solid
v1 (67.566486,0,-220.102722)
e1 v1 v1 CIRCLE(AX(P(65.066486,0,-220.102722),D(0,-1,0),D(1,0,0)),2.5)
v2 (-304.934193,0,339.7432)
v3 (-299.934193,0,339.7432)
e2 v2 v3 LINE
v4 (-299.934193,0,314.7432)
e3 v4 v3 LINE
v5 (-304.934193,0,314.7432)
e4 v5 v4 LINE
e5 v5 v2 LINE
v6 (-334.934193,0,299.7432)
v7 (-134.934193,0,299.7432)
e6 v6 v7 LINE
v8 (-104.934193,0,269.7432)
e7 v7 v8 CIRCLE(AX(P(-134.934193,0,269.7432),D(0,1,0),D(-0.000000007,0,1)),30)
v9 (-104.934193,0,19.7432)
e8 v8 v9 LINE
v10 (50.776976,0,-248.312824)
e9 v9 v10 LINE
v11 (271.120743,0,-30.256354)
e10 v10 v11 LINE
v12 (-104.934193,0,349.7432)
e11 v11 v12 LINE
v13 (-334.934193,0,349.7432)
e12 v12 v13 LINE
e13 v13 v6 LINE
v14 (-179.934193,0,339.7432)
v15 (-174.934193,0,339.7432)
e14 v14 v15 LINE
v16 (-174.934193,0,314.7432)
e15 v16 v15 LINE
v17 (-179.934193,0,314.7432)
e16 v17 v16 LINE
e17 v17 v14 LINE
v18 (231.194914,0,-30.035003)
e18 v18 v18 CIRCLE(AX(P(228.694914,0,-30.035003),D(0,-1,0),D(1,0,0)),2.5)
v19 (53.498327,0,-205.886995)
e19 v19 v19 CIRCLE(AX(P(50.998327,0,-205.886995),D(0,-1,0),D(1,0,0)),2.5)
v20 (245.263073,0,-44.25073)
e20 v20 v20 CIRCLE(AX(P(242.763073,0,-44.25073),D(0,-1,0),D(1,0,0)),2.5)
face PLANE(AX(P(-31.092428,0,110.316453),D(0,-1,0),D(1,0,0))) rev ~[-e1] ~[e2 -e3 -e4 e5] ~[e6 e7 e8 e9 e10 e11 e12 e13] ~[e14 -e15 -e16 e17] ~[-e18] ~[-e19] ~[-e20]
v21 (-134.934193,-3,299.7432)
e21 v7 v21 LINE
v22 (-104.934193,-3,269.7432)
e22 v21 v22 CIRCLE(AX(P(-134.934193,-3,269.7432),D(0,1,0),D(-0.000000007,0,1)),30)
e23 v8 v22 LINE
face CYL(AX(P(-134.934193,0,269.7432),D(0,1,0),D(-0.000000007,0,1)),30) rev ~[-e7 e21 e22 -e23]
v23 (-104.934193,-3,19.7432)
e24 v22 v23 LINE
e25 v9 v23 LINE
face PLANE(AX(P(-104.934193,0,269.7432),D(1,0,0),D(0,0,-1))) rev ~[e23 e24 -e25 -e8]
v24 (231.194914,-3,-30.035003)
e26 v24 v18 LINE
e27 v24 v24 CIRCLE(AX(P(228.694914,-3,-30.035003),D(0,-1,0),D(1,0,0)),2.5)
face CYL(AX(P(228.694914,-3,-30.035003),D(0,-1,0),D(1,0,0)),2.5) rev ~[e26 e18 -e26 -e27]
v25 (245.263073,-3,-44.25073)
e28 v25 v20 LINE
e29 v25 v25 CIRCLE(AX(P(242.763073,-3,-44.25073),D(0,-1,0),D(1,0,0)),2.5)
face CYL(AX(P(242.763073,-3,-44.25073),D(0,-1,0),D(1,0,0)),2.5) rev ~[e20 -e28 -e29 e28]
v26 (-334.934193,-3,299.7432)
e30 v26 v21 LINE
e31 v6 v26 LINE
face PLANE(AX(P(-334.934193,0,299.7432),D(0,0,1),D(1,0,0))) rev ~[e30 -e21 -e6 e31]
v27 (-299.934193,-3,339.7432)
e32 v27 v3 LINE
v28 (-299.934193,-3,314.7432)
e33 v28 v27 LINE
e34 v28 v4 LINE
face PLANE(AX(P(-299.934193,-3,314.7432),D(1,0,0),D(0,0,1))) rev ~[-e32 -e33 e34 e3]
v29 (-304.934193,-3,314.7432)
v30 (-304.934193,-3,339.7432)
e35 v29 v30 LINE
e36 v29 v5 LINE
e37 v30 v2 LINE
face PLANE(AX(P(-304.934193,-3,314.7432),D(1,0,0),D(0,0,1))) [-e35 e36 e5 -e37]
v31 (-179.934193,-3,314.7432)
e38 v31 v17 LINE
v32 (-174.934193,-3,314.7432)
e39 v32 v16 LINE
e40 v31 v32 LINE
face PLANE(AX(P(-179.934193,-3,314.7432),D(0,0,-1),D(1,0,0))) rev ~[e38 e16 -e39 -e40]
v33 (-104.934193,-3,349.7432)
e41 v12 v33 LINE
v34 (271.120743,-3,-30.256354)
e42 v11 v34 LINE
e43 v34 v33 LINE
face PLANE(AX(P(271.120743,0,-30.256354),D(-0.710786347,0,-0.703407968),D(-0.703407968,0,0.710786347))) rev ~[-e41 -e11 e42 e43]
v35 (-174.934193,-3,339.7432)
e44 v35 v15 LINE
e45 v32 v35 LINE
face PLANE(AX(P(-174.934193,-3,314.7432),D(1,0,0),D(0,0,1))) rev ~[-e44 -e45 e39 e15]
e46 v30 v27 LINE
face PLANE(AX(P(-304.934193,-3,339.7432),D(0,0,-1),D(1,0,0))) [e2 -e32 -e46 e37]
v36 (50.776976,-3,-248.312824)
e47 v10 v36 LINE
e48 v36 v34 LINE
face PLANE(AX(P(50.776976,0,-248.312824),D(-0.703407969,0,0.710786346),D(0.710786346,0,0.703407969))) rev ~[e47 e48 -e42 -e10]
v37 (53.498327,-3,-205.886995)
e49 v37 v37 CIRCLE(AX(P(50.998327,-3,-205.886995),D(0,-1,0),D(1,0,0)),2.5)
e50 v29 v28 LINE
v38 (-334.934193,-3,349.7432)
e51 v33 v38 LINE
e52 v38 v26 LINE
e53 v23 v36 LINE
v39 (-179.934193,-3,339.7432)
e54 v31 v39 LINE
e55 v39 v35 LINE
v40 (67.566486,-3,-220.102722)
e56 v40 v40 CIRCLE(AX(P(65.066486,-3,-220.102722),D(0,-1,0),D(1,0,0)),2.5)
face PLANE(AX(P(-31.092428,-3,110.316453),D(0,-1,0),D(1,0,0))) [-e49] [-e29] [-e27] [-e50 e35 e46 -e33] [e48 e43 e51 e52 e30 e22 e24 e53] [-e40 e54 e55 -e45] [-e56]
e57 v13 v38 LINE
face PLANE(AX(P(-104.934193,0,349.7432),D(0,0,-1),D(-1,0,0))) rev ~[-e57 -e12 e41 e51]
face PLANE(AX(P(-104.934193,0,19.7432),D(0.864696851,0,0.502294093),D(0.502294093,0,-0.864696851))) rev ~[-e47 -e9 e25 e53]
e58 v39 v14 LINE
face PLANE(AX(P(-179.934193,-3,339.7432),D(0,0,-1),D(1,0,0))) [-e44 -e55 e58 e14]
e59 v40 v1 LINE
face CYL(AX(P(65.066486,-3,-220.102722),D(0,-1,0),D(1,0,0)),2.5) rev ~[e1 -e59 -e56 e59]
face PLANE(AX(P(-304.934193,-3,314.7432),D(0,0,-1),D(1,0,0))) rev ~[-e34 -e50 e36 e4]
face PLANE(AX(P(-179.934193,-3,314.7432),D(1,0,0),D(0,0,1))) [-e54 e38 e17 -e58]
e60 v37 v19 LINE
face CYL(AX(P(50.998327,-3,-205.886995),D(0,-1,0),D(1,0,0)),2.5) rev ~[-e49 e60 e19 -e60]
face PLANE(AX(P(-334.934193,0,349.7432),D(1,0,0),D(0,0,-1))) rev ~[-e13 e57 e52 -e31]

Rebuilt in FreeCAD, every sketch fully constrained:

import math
import FreeCAD as App
import Part
import Sketcher

doc = App.newDocument("Part")
body = doc.addObject("PartDesign::Body", "Body")

# Sketch on XZ plane
sketch1 = doc.addObject("Sketcher::SketchObject", "Sketch")
body.addObject(sketch1)
sketch1.AttachmentSupport = (doc.XZ_Plane, [""])
sketch1.MapMode = "FlatFace"
sketch1.addGeometry([
    Part.LineSegment(App.Vector(-105, 350, 0), App.Vector(-335, 350, 0)),  # 0
    Part.LineSegment(App.Vector(-335, 350, 0), App.Vector(-335, 300, 0)),  # 1
    Part.LineSegment(App.Vector(-335, 300, 0), App.Vector(-135, 300, 0)),  # 2
    Part.ArcOfCircle(Part.Circle(App.Vector(-135, 270, 0), App.Vector(0, 0, 1), 30), math.radians(0), math.radians(90)),  # 3
    Part.LineSegment(App.Vector(-105, 270, 0), App.Vector(-105, 20, 0)),  # 4
    Part.LineSegment(App.Vector(-105, 20, 0), App.Vector(51, -248, 0)),  # 5
    Part.LineSegment(App.Vector(51, -248, 0), App.Vector(271, -30, 0)),  # 6
    Part.LineSegment(App.Vector(271, -30, 0), App.Vector(-105, 350, 0)),  # 7
], False)
sketch1.addConstraint([
    Sketcher.Constraint("Coincident", 0, 2, 1, 1),
    Sketcher.Constraint("Coincident", 1, 2, 2, 1),
    Sketcher.Constraint("Tangent", 2, 2, 3, 2),
    Sketcher.Constraint("Tangent", 3, 1, 4, 1),
    Sketcher.Constraint("Coincident", 4, 2, 5, 1),
    Sketcher.Constraint("Coincident", 5, 2, 6, 1),
    Sketcher.Constraint("Coincident", 6, 2, 7, 1),
    Sketcher.Constraint("Coincident", 7, 2, 0, 1),
    Sketcher.Constraint("Horizontal", 0),
    Sketcher.Constraint("Vertical", 1),
    Sketcher.Constraint("Horizontal", 2),
    Sketcher.Constraint("Vertical", 4),
    Sketcher.Constraint("Perpendicular", 6, 7),
    Sketcher.Constraint("Vertical", 4, 2, 7, 2),
    Sketcher.Constraint("Equal", 5, 6),
    Sketcher.Constraint("Radius", 3, 30.0),
    Sketcher.Constraint("DistanceX", 0, 2, 0, 1, 230.0),
    Sketcher.Constraint("DistanceY", 1, 2, 1, 1, 50.0),
    Sketcher.Constraint("DistanceY", 4, 2, 4, 1, 250.0),
    Sketcher.Constraint("Distance", 5, 310.0),
    Sketcher.Constraint("DistanceY", -1, 1, 3, 3, 269.7432),
    Sketcher.Constraint("DistanceX", 4, 2, 5, 2, 155.711169),
    Sketcher.Constraint("DistanceX", 3, 3, -1, 1, 134.934193),
])
pad1 = doc.addObject("PartDesign::Pad", "Pad")
body.addObject(pad1)
pad1.Profile = sketch1
pad1.Length = 3

# Sketch on XZ plane
sketch2 = doc.addObject("Sketcher::SketchObject", "Sketch001")
body.addObject(sketch2)
sketch2.AttachmentSupport = (doc.XZ_Plane, [""])
sketch2.MapMode = "FlatFace"
sketch2.AttachmentOffset = App.Placement(App.Vector(0, 0, 3), App.Rotation())
sketch2.addGeometry([
    Part.LineSegment(App.Vector(-305, 340, 0), App.Vector(-305, 315, 0)),  # 0
    Part.LineSegment(App.Vector(-305, 315, 0), App.Vector(-300, 315, 0)),  # 1
    Part.LineSegment(App.Vector(-300, 315, 0), App.Vector(-300, 340, 0)),  # 2
    Part.LineSegment(App.Vector(-300, 340, 0), App.Vector(-305, 340, 0)),  # 3
    Part.LineSegment(App.Vector(-180, 340, 0), App.Vector(-180, 315, 0)),  # 4
    Part.LineSegment(App.Vector(-180, 315, 0), App.Vector(-175, 315, 0)),  # 5
    Part.LineSegment(App.Vector(-175, 315, 0), App.Vector(-175, 340, 0)),  # 6
    Part.LineSegment(App.Vector(-175, 340, 0), App.Vector(-180, 340, 0)),  # 7
], False)
sketch2.addConstraint([
    Sketcher.Constraint("Coincident", 0, 2, 1, 1),
    Sketcher.Constraint("Coincident", 1, 2, 2, 1),
    Sketcher.Constraint("Coincident", 2, 2, 3, 1),
    Sketcher.Constraint("Coincident", 3, 2, 0, 1),
    Sketcher.Constraint("Coincident", 4, 2, 5, 1),
    Sketcher.Constraint("Coincident", 5, 2, 6, 1),
    Sketcher.Constraint("Coincident", 6, 2, 7, 1),
    Sketcher.Constraint("Coincident", 7, 2, 4, 1),
    Sketcher.Constraint("Vertical", 0),
    Sketcher.Constraint("Horizontal", 1),
    Sketcher.Constraint("Vertical", 2),
    Sketcher.Constraint("Horizontal", 3),
    Sketcher.Constraint("Vertical", 4),
    Sketcher.Constraint("Horizontal", 5),
    Sketcher.Constraint("Vertical", 6),
    Sketcher.Constraint("Horizontal", 7),
    Sketcher.Constraint("Horizontal", 1, 2, 4, 2),
    Sketcher.Constraint("Horizontal", 3, 2, 6, 2),
    Sketcher.Constraint("Equal", 3, 5),
    Sketcher.Constraint("DistanceX", 1, 1, 1, 2, 5.0),
    Sketcher.Constraint("DistanceY", 0, 2, 0, 1, 25.0),
    Sketcher.Constraint("DistanceX", 1, 2, 4, 2, 120.0),
    Sketcher.Constraint("DistanceY", -1, 1, 0, 2, 314.7432),
    Sketcher.Constraint("DistanceX", 0, 2, -1, 1, 304.934193),
])
pocket1 = doc.addObject("PartDesign::Pocket", "Pocket")
body.addObject(pocket1)
pocket1.Profile = sketch2
pocket1.Type = "ThroughAll"

# Sketch on XZ plane
sketch3 = doc.addObject("Sketcher::SketchObject", "Sketch002")
body.addObject(sketch3)
sketch3.AttachmentSupport = (doc.XZ_Plane, [""])
sketch3.MapMode = "FlatFace"
sketch3.AttachmentOffset = App.Placement(App.Vector(0, 0, 3), App.Rotation())
sketch3.addGeometry([
    Part.Circle(App.Vector(228.7, -30, 0), App.Vector(0, 0, 1), 2.5),
    Part.Circle(App.Vector(242.8, -44.3, 0), App.Vector(0, 0, 1), 2.5),
    Part.Circle(App.Vector(51, -205.9, 0), App.Vector(0, 0, 1), 2.5),
    Part.Circle(App.Vector(65.1, -220.1, 0), App.Vector(0, 0, 1), 2.5),
], False)
sketch3.addConstraint([
    Sketcher.Constraint("Equal", 0, 1),
    Sketcher.Constraint("Equal", 1, 2),
    Sketcher.Constraint("Equal", 2, 3),
    Sketcher.Constraint("Diameter", 0, 5.0),
    Sketcher.Constraint("DistanceY", 1, 3, -1, 1, 44.25073),
    Sketcher.Constraint("DistanceY", 3, 3, -1, 1, 220.102722),
    Sketcher.Constraint("DistanceX", 0, 3, 1, 3, 14.068159),
    Sketcher.Constraint("DistanceX", 2, 3, 3, 3, 14.068159),
    Sketcher.Constraint("DistanceX", 3, 3, 0, 3, 163.628428),
    Sketcher.Constraint("DistanceY", 3, 3, 0, 3, 190.067719),
    Sketcher.Constraint("DistanceX", -1, 1, 0, 3, 228.694914),
    Sketcher.Constraint("DistanceY", 2, 3, -1, 1, 205.886995),
])
pocket2 = doc.addObject("PartDesign::Pocket", "Pocket001")
body.addObject(pocket2)
pocket2.Profile = sketch3
pocket2.Type = "ThroughAll"

doc.recompute()
